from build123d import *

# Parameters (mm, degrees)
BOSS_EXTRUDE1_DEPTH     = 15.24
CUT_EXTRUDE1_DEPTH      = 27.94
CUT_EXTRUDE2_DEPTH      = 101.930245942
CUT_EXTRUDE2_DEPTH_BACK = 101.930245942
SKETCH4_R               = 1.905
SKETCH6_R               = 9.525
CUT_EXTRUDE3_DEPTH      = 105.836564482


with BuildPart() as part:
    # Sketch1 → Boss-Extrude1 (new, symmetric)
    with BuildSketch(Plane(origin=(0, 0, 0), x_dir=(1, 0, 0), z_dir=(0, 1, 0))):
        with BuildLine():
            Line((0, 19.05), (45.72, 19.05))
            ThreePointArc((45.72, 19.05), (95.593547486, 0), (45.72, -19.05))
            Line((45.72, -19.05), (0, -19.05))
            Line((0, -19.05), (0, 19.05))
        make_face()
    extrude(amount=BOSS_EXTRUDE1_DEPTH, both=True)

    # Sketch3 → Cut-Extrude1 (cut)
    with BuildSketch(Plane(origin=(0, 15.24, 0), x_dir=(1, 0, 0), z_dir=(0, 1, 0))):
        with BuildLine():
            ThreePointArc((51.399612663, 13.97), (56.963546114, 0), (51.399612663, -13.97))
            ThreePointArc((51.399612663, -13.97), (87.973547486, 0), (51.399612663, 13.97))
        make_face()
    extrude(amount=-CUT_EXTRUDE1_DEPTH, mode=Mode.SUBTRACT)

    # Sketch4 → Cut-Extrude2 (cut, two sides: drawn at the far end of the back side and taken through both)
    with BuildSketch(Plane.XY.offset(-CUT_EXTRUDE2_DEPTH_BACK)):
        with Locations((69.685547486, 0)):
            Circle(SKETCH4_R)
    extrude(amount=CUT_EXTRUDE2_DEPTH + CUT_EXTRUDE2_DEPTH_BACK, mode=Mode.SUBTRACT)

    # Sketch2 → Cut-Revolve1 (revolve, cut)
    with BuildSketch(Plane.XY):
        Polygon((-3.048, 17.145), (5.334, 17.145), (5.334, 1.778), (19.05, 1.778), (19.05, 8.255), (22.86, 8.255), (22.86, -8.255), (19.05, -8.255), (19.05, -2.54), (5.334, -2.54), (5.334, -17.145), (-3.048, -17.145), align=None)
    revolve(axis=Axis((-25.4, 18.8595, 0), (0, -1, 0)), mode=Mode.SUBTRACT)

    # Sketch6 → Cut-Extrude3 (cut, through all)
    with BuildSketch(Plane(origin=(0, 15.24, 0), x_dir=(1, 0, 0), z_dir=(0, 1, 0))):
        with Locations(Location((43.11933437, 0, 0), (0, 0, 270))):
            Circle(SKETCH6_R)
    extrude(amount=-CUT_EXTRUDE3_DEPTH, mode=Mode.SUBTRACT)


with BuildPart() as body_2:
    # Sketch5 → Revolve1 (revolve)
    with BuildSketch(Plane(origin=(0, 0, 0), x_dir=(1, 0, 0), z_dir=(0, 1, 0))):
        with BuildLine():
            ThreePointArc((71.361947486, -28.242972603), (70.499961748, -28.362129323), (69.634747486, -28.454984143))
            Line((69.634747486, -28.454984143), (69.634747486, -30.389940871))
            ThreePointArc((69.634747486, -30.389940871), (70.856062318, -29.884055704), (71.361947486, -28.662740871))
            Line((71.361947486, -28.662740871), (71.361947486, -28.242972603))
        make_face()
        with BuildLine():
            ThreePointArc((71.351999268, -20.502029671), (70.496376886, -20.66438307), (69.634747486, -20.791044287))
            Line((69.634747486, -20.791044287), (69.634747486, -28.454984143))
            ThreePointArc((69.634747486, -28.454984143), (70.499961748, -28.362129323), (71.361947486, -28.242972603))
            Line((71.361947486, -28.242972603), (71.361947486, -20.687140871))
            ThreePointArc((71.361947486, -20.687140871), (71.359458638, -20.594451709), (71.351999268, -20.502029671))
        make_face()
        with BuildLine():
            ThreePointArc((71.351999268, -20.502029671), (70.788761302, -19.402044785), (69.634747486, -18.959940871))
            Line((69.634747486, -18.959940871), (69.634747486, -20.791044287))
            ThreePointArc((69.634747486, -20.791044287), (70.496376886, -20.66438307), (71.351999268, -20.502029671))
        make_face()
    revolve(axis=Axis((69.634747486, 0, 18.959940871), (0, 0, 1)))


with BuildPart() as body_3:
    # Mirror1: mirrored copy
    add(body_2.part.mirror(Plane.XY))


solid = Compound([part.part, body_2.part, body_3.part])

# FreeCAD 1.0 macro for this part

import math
import FreeCAD as App
import Part
import Sketcher

V = App.Vector
Q = App.Units.Quantity

doc = App.newDocument("Part")
body = doc.addObject("PartDesign::Body", "Body")

# Sketch on XZ plane
sketch1 = doc.addObject("Sketcher::SketchObject", "Sketch")
body.addObject(sketch1)
sketch1.AttachmentSupport = (doc.XZ_Plane, [""])
sketch1.MapMode = "FlatFace"
sketch1.addGeometry([
    Part.LineSegment(V(46, -19, 0), V(0, -19, 0)),
    Part.LineSegment(V(0, -19, 0), V(0, 19, 0)),
    Part.LineSegment(V(0, 19, 0), V(46, 19, 0)),
    Part.ArcOfCircle(Part.Circle(V(67, 0, 0), V(0, 0, 1), 29), math.radians(-138), math.radians(138)),
], False)
sketch1.addConstraint([
    Sketcher.Constraint("Coincident", 0, 2, 1, 1),
    Sketcher.Constraint("Coincident", 1, 2, 2, 1),
    Sketcher.Constraint("Coincident", 2, 2, 3, 2),
    Sketcher.Constraint("Coincident", 3, 1, 0, 1),
    Sketcher.Constraint("Horizontal", 0),
    Sketcher.Constraint("Vertical", 1),
    Sketcher.Constraint("Horizontal", 2),
    Sketcher.Constraint("Symmetric", 0, 2, 1, 2, -1, 1),
    Sketcher.Constraint("PointOnObject", 3, 3, -1),
    Sketcher.Constraint("DistanceX", 0, 2, 0, 1, Q("1.8 in")),
    Sketcher.Constraint("DistanceY", 1, 1, 1, 2, Q("1.5 in")),
    Sketcher.Constraint("Radius", 3, Q("1.125 in")),
])
pad1 = doc.addObject("PartDesign::Pad", "Pad")
body.addObject(pad1)
pad1.Profile = sketch1
pad1.Length = Q("1.2 in")
pad1.Midplane = True

# Sketch on XZ plane
sketch2 = doc.addObject("Sketcher::SketchObject", "Sketch001")
body.addObject(sketch2)
sketch2.AttachmentSupport = (doc.XZ_Plane, [""])
sketch2.MapMode = "FlatFace"
sketch2.AttachmentOffset = App.Placement(V(0, 0, -0.6 * 25.4), App.Rotation())
sketch2.addGeometry([
    Part.ArcOfCircle(Part.Circle(V(37, 0, 0), V(0, 0, 1), 20), math.radians(-43), math.radians(43)),
    Part.ArcOfCircle(Part.Circle(V(67, 0, 0), V(0, 0, 1), 21), math.radians(-138), math.radians(138)),
], False)
sketch2.addConstraint([
    Sketcher.Constraint("Coincident", 0, 1, 1, 1),
    Sketcher.Constraint("Coincident", 1, 2, 0, 2),
    Sketcher.Constraint("Symmetric", 0, 1, 1, 2, -1),
    Sketcher.Constraint("Radius", 0, Q("0.8 in")),
    Sketcher.Constraint("Radius", 1, Q("0.825 in")),
    Sketcher.Constraint("DistanceY", 0, 1, 1, 2, Q("1.1 in")),
    Sketcher.Constraint("DistanceX", -1, 1, 0, 3, 36.643546),
])
pocket1 = doc.addObject("PartDesign::Pocket", "Pocket")
body.addObject(pocket1)
pocket1.Profile = sketch2
pocket1.Length = Q("1.1 in")
pocket1.Reversed = True

# Sketch on XY plane
sketch3 = doc.addObject("Sketcher::SketchObject", "Sketch002")
body.addObject(sketch3)
sketch3.AttachmentSupport = (doc.XY_Plane, [""])
sketch3.MapMode = "FlatFace"
sketch3.addGeometry(Part.Circle(V(69.7, 0, 0), V(0, 0, 1), 1.9), False)
sketch3.addConstraint([
    Sketcher.Constraint("PointOnObject", 0, 3, -1),
    Sketcher.Constraint("Diameter", 0, Q("0.15 in")),
    Sketcher.Constraint("DistanceX", -1, 1, 0, 3, 69.685547),
])
pocket2 = doc.addObject("PartDesign::Pocket", "Pocket001")
body.addObject(pocket2)
pocket2.Profile = sketch3
pocket2.Type = "ThroughAll"
pocket2.Midplane = True

# Sketch on XY plane
sketch4 = doc.addObject("Sketcher::SketchObject", "Sketch003")
body.addObject(sketch4)
sketch4.AttachmentSupport = (doc.XY_Plane, [""])
sketch4.MapMode = "FlatFace"
sketch4.addGeometry([
    Part.LineSegment(V(5.3, 17.1, 0), V(-3, 17.1, 0)),  # 0
    Part.LineSegment(V(-3, 17.1, 0), V(-3, -17.1, 0)),  # 1
    Part.LineSegment(V(-3, -17.1, 0), V(5.3, -17.1, 0)),  # 2
    Part.LineSegment(V(5.3, -17.1, 0), V(5.3, -2.5, 0)),  # 3
    Part.LineSegment(V(5.3, -2.5, 0), V(19.1, -2.5, 0)),  # 4
    Part.LineSegment(V(19.1, -2.5, 0), V(19.1, -8.3, 0)),  # 5
    Part.LineSegment(V(19.1, -8.3, 0), V(22.9, -8.3, 0)),  # 6
    Part.LineSegment(V(22.9, -8.3, 0), V(22.9, 8.3, 0)),  # 7
    Part.LineSegment(V(22.9, 8.3, 0), V(19.1, 8.3, 0)),  # 8
    Part.LineSegment(V(19.1, 8.3, 0), V(19.1, 1.8, 0)),  # 9
    Part.LineSegment(V(19.1, 1.8, 0), V(5.3, 1.8, 0)),  # 10
    Part.LineSegment(V(5.3, 1.8, 0), V(5.3, 17.1, 0)),  # 11
], False)
sketch4.addGeometry(Part.LineSegment(V(-25.4, 17.1, 0), V(-25.4, -17.1, 0)), True)  # axis
sketch4.addConstraint([
    Sketcher.Constraint("Coincident", 0, 2, 1, 1),
    Sketcher.Constraint("Coincident", 1, 2, 2, 1),
    Sketcher.Constraint("Coincident", 2, 2, 3, 1),
    Sketcher.Constraint("Coincident", 3, 2, 4, 1),
    Sketcher.Constraint("Coincident", 4, 2, 5, 1),
    Sketcher.Constraint("Coincident", 5, 2, 6, 1),
    Sketcher.Constraint("Coincident", 6, 2, 7, 1),
    Sketcher.Constraint("Coincident", 7, 2, 8, 1),
    Sketcher.Constraint("Coincident", 8, 2, 9, 1),
    Sketcher.Constraint("Coincident", 9, 2, 10, 1),
    Sketcher.Constraint("Coincident", 10, 2, 11, 1),
    Sketcher.Constraint("Coincident", 11, 2, 0, 1),
    Sketcher.Constraint("Horizontal", 0),
    Sketcher.Constraint("Vertical", 1),
    Sketcher.Constraint("Horizontal", 2),
    Sketcher.Constraint("Vertical", 3),
    Sketcher.Constraint("Horizontal", 4),
    Sketcher.Constraint("Vertical", 5),
    Sketcher.Constraint("Horizontal", 6),
    Sketcher.Constraint("Vertical", 7),
    Sketcher.Constraint("Horizontal", 8),
    Sketcher.Constraint("Vertical", 9),
    Sketcher.Constraint("Horizontal", 10),
    Sketcher.Constraint("Vertical", 11),
    Sketcher.Constraint("Vertical", 12),
    Sketcher.Constraint("Symmetric", 5, 2, 8, 2, -1),
    Sketcher.Constraint("Symmetric", 2, 2, 11, 2, -1),
    Sketcher.Constraint("Horizontal", 11, 2, 12, 1),
    Sketcher.Constraint("Horizontal", 2, 2, 12, 2),
    Sketcher.Constraint("DistanceX", 12, 1, -1, 1, Q("1 in")),
    Sketcher.Constraint("DistanceY", 5, 2, 0, 2, Q("1 in")),
    Sketcher.Constraint("DistanceX", 0, 2, 0, 1, Q("0.33 in")),
    Sketcher.Constraint("DistanceX", 4, 1, 4, 2, Q("0.54 in")),
    Sketcher.Constraint("DistanceX", 6, 1, 6, 2, Q("0.15 in")),
    Sketcher.Constraint("DistanceY", 1, 2, 1, 1, Q("1.35 in")),
    Sketcher.Constraint("DistanceY", 3, 2, -1, 1, Q("0.1 in")),
    Sketcher.Constraint("DistanceX", -1, 1, 6, 2, Q("0.9 in")),
    Sketcher.Constraint("DistanceY", 9, 2, 9, 1, Q("0.255 in")),
])
groove = doc.addObject("PartDesign::Groove", "Groove")
body.addObject(groove)
groove.Profile = sketch4
groove.ReferenceAxis = (sketch4, ["Axis0"])
groove.Angle = 360

# Sketch on XZ plane
sketch5 = doc.addObject("Sketcher::SketchObject", "Sketch004")
body.addObject(sketch5)
sketch5.AttachmentSupport = (doc.XZ_Plane, [""])
sketch5.MapMode = "FlatFace"
sketch5.AttachmentOffset = App.Placement(V(0, 0, -0.6 * 25.4), App.Rotation())
sketch5.addGeometry(Part.Circle(V(43, 0, 0), V(0, 0, 1), 10), False)
sketch5.addConstraint([
    Sketcher.Constraint("PointOnObject", 0, 3, -1),
    Sketcher.Constraint("Diameter", 0, Q("0.75 in")),
    Sketcher.Constraint("DistanceX", -1, 1, 0, 3, 43.119334),
])
pocket3 = doc.addObject("PartDesign::Pocket", "Pocket002")
body.addObject(pocket3)
pocket3.Profile = sketch5
pocket3.Type = "ThroughAll"
pocket3.Reversed = True
body2 = doc.addObject("PartDesign::Body", "Body001")

# Sketch on XZ plane
sketch6 = doc.addObject("Sketcher::SketchObject", "Sketch005")
body2.addObject(sketch6)
sketch6.AttachmentSupport = (doc.getObject("XZ_Plane001"), [""])
sketch6.MapMode = "FlatFace"
sketch6.addGeometry([
    Part.ArcOfCircle(Part.Circle(V(69.63, 28.66, 0), V(0, 0, 1), 1.73), math.radians(0), math.radians(90)),  # 0
    Part.LineSegment(V(71.36, 28.66, 0), V(71.36, 20.69, 0)),  # 1
    Part.ArcOfCircle(Part.Circle(V(69.63, 20.69, 0), V(0, 0, 1), 1.73), math.radians(-6.15), math.radians(0)),  # 2
    Part.ArcOfCircle(Part.Circle(V(69.63, 20.69, 0), V(0, 0, 1), 1.73), math.radians(-90), math.radians(-6)),  # 3
    Part.LineSegment(V(69.63, 18.96, 0), V(69.63, 30.39, 0)),  # 4
], False)
sketch6.addGeometry(Part.LineSegment(V(69.63, 18.96, 0), V(69.63, 30.39, 0)), True)  # axis
sketch6.addConstraint([
    Sketcher.Constraint("Tangent", 0, 1, 1, 1),
    Sketcher.Constraint("Tangent", 1, 2, 2, 2),
    Sketcher.Constraint("Tangent", 2, 1, 3, 2),
    Sketcher.Constraint("Coincident", 3, 1, 4, 1),
    Sketcher.Constraint("Coincident", 4, 2, 0, 2),
    Sketcher.Constraint("Vertical", 1),
    Sketcher.Constraint("Vertical", 4),
    Sketcher.Constraint("Vertical", 5),
    Sketcher.Constraint("Coincident", 5, 1, 3, 1),
    Sketcher.Constraint("Equal", 0, 2),
    Sketcher.Constraint("Equal", 2, 3),
    Sketcher.Constraint("Vertical", 2, 3, 3, 1),
    Sketcher.Constraint("Equal", 4, 5),
    Sketcher.Constraint("Radius", 0, Q("0.068 in")),
    Sketcher.Constraint("DistanceY", 4, 1, 4, 2, Q("0.45 in")),
    Sketcher.Constraint("DistanceX", -1, 1, 2, 1, 71.351999),
    Sketcher.Constraint("DistanceY", -1, 1, 0, 3, 28.662741),
    Sketcher.Constraint("DistanceY", -1, 1, 2, 1, 20.50203),
])
revolution = doc.addObject("PartDesign::Revolution", "Revolution")
body2.addObject(revolution)
revolution.Profile = sketch6
revolution.ReferenceAxis = (sketch6, ["Axis0"])
revolution.Angle = 360
body3 = doc.addObject("PartDesign::Body", "Body002")
doc.recompute()

mirroring = doc.addObject("Part::Mirroring", "Mirroring")
mirroring.Source = body2
mirroring.Base = V(0, 0, 0)
mirroring.Normal = V(0, 0, 1)
body3.BaseFeature = mirroring
doc.recompute()
mirroring.Visibility = False

doc.recompute()
